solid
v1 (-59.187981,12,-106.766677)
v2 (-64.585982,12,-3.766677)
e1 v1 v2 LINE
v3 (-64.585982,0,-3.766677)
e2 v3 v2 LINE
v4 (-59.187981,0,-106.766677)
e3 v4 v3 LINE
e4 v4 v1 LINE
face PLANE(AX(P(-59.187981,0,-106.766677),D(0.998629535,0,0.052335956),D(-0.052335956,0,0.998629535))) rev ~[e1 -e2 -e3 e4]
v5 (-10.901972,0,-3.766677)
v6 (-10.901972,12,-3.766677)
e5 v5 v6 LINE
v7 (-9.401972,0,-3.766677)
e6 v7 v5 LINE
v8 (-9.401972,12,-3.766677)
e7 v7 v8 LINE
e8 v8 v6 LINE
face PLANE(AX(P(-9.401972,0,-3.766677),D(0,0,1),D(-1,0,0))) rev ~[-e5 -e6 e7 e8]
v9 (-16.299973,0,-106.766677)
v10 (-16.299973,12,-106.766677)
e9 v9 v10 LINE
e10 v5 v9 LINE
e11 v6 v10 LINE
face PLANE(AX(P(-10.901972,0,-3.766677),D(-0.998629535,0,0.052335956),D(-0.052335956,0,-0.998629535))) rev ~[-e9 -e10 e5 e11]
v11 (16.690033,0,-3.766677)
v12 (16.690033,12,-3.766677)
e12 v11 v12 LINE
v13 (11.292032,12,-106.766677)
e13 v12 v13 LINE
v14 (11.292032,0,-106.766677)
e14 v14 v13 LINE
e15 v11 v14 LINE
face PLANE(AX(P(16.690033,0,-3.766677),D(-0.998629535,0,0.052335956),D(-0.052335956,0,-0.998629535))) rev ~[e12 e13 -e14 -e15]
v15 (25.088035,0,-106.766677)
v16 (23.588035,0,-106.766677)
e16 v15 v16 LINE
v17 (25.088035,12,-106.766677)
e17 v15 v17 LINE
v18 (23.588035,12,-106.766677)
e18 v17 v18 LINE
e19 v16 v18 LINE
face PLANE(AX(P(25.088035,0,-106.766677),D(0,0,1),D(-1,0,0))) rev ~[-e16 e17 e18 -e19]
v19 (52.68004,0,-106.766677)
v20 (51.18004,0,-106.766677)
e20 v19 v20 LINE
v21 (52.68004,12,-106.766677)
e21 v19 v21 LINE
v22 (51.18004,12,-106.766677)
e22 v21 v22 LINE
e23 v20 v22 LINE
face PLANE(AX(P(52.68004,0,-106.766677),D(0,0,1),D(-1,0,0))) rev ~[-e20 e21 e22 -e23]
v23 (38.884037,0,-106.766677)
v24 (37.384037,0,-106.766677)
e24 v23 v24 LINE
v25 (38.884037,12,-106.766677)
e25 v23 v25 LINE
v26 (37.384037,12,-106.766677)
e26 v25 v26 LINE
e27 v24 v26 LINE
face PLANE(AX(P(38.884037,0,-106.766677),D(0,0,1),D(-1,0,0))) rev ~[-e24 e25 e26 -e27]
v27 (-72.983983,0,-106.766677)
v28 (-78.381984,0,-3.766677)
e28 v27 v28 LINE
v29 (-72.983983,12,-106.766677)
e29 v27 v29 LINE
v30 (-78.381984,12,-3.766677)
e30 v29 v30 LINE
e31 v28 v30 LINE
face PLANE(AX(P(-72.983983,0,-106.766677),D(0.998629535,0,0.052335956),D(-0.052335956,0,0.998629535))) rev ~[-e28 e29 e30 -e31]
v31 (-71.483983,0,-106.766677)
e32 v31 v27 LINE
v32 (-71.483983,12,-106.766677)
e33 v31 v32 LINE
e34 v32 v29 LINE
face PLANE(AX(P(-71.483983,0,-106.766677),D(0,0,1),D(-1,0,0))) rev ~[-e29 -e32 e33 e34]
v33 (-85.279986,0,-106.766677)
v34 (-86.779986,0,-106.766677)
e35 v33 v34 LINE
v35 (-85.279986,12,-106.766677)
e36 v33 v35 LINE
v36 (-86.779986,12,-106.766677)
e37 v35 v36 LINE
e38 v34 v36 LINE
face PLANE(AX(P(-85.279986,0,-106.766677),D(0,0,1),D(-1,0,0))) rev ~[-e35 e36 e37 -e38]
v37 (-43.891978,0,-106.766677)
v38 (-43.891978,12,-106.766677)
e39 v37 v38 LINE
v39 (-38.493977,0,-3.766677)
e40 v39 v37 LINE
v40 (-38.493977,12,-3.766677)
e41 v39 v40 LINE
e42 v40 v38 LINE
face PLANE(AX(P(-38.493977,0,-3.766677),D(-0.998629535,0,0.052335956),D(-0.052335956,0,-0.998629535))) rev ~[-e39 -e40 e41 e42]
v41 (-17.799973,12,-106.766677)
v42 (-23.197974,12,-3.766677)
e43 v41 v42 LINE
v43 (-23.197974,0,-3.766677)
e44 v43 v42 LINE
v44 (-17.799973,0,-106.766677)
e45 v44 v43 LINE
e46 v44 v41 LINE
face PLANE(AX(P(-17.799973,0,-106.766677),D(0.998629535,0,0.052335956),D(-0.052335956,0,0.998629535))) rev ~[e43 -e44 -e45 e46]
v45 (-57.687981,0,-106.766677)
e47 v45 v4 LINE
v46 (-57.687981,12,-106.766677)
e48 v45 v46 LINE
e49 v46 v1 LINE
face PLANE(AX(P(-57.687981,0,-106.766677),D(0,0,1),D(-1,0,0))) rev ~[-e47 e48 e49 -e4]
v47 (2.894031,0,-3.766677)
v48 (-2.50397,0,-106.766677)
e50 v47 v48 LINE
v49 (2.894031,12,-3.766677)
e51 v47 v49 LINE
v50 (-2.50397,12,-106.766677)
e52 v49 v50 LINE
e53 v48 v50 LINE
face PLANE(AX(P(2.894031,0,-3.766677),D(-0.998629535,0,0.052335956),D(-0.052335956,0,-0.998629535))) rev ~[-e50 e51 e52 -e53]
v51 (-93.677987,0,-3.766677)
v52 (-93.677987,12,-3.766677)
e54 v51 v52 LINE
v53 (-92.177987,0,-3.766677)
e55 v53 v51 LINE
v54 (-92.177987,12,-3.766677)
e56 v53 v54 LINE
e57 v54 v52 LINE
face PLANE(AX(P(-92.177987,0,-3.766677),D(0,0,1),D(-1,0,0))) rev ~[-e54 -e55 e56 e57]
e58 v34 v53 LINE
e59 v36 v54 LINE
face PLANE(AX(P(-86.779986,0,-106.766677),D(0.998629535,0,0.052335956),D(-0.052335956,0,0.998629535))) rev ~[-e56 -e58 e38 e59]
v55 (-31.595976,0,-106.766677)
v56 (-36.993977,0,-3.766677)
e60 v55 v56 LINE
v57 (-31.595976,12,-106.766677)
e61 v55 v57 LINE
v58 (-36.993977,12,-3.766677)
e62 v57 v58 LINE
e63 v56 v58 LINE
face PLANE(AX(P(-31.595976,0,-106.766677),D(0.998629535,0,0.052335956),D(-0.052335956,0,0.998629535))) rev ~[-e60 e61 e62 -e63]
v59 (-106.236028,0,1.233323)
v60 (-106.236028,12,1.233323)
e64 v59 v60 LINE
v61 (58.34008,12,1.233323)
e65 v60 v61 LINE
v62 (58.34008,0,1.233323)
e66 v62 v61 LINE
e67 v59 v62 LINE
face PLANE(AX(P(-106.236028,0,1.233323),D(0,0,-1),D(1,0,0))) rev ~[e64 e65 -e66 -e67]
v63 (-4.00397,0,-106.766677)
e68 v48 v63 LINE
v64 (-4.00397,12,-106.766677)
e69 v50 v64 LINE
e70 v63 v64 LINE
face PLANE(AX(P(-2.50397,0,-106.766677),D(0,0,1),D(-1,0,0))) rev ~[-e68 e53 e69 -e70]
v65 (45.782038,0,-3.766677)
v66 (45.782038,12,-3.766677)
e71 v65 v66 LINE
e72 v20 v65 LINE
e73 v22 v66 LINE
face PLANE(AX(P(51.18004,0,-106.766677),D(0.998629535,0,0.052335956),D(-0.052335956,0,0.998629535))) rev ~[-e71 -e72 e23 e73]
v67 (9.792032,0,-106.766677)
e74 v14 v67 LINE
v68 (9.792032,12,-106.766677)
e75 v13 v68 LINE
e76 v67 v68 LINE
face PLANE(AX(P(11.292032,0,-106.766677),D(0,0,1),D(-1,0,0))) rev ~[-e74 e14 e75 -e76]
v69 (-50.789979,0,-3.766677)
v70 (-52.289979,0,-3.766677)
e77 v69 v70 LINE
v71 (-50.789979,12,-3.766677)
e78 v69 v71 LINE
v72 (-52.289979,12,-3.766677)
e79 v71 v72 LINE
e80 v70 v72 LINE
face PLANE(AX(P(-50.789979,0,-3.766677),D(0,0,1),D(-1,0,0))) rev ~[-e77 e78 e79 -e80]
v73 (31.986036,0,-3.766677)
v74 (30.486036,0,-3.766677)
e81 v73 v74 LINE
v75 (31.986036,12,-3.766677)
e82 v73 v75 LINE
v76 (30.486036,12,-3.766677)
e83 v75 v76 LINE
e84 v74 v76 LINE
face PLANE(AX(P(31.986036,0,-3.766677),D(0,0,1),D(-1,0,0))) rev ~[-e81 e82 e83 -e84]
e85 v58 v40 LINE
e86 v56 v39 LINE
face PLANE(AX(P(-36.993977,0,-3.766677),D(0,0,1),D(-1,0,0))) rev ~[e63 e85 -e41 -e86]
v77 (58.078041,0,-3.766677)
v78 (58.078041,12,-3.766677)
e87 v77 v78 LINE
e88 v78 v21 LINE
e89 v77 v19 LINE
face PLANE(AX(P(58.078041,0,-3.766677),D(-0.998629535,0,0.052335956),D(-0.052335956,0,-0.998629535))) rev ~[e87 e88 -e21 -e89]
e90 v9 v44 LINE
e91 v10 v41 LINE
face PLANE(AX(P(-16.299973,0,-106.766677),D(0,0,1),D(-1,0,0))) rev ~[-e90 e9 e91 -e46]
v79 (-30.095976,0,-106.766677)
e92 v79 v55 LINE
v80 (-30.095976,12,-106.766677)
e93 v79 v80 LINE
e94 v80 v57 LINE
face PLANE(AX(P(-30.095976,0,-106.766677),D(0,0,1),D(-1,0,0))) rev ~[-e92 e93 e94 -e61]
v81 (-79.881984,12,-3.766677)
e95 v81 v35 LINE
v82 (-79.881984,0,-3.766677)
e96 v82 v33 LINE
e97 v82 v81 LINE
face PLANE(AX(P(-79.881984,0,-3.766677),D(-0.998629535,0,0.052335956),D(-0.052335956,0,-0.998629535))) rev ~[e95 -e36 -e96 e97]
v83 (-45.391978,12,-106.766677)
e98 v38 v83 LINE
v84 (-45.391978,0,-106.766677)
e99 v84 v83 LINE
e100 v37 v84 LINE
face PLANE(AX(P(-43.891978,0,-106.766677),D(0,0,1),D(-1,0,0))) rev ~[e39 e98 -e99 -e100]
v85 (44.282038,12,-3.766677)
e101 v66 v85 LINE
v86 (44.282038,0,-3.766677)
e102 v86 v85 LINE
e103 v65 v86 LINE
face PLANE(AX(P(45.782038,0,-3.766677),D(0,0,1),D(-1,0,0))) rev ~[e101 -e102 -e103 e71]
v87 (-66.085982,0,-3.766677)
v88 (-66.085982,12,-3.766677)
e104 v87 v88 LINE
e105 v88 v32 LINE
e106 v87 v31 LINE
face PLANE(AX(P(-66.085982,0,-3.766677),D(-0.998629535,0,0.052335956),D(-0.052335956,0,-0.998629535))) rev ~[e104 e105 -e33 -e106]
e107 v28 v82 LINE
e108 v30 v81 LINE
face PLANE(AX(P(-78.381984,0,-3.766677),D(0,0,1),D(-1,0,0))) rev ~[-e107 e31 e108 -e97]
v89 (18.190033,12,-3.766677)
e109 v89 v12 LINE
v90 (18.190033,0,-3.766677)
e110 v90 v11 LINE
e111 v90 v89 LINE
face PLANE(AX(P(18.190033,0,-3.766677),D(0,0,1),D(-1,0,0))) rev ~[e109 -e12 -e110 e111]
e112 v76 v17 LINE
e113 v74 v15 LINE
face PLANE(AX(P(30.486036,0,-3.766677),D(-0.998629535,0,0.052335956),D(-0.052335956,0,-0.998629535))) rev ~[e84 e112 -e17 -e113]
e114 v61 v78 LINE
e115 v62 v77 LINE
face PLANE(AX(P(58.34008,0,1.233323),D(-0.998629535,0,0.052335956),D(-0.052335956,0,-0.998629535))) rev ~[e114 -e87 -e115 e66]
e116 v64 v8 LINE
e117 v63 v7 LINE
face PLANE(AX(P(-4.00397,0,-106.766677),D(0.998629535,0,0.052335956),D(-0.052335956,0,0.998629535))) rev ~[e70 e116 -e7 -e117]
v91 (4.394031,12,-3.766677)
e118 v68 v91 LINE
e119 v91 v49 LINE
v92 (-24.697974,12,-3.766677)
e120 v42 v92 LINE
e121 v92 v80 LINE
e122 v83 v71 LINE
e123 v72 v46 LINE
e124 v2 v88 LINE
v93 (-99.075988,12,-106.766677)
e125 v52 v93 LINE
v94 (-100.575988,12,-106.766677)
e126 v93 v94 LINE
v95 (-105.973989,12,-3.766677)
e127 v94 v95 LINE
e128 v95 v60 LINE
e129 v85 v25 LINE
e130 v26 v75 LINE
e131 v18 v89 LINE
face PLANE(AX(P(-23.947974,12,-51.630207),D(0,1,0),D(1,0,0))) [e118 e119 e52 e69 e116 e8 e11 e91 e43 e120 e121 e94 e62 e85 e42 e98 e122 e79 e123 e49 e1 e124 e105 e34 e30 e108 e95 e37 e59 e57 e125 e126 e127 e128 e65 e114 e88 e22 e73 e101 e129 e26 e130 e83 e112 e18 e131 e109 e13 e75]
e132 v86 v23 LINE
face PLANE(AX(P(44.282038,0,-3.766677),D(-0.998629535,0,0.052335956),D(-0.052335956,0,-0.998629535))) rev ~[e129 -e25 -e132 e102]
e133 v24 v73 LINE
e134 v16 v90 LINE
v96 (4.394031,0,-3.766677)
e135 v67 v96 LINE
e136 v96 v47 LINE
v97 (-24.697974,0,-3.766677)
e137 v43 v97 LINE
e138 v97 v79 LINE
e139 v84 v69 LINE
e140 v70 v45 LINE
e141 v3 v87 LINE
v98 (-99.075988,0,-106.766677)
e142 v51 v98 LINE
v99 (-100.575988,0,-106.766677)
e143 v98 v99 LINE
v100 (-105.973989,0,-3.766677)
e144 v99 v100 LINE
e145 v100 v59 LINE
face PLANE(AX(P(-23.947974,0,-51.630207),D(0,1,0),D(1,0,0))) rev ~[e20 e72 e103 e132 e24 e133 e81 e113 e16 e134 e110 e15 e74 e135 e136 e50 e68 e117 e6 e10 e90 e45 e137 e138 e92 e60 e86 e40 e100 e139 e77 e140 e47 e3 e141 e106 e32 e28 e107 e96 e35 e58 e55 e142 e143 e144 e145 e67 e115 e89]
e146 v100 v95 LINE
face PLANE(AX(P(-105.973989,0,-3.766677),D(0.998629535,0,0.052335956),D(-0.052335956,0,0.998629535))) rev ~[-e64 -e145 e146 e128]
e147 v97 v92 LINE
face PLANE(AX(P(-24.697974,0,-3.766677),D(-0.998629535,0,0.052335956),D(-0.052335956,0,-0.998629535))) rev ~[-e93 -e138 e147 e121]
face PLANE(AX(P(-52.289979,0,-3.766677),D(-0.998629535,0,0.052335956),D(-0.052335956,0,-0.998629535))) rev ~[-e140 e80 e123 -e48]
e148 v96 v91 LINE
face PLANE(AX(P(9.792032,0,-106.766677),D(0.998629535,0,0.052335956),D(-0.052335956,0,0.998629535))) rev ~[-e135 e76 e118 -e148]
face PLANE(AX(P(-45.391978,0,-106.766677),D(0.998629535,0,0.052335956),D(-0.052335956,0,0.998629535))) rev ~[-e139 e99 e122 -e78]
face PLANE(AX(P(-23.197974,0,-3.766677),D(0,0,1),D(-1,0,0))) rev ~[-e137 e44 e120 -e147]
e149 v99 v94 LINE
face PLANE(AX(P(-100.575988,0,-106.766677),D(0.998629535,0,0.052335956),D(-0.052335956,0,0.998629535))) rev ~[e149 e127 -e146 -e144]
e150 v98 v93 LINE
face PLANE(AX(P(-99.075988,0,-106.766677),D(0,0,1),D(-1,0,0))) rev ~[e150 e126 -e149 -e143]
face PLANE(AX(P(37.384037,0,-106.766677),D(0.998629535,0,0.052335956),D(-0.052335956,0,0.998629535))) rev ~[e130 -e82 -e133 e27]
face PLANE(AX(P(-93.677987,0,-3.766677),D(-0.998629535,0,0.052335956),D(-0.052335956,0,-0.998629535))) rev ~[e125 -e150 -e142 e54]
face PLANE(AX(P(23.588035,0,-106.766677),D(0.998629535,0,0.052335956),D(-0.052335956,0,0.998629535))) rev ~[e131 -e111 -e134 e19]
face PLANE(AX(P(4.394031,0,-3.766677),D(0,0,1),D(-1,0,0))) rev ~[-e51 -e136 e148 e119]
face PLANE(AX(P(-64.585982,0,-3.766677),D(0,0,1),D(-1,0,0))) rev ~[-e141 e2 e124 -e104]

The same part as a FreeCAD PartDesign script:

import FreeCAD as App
import Part
import Sketcher
from FreeCAD import Vector
Q = App.Units.Quantity


def add_polygon(sketch, points):
    """Adds a closed chain of lines whose ends are joined by coincident constraints."""
    first, n = sketch.GeometryCount, len(points)
    for a, b in zip(points, points[1:] + points[:1]):
        sketch.addGeometry(Part.LineSegment(App.Vector(*a, 0), App.Vector(*b, 0)), False)
    for i in range(n):
        sketch.addConstraint(Sketcher.Constraint("Coincident", first + i, 2, first + (i + 1) % n, 1))

doc = App.newDocument("Part")
body = doc.addObject("PartDesign::Body", "Body")

sketch1 = body.newObject("Sketcher::SketchObject", "Sketch")
sketch1.AttachmentSupport = (doc.getObject("XZ_Plane"), [""])
sketch1.MapMode = "FlatFace"
add_polygon(sketch1, [(58.3, 1.2), (58.1, -3.8), (52.7, -106.8), (51.2, -106.8), (45.8, -3.8), (44.3, -3.8), (38.9, -106.8), (37.4, -106.8), (32, -3.8), (30.5, -3.8), (25.1, -106.8), (23.6, -106.8), (18.2, -3.8), (16.7, -3.8), (11.3, -106.8), (9.8, -106.8), (4.4, -3.8), (2.9, -3.8), (-2.5, -106.8), (-4, -106.8), (-9.4, -3.8), (-10.9, -3.8), (-16.3, -106.8), (-17.8, -106.8), (-23.2, -3.8), (-24.7, -3.8), (-30.1, -106.8), (-31.6, -106.8), (-37, -3.8), (-38.5, -3.8), (-43.9, -106.8), (-45.4, -106.8), (-50.8, -3.8), (-52.3, -3.8), (-57.7, -106.8), (-59.2, -106.8), (-64.6, -3.8), (-66.1, -3.8), (-71.5, -106.8), (-73, -106.8), (-78.4, -3.8), (-79.9, -3.8), (-85.3, -106.8), (-86.8, -106.8), (-92.2, -3.8), (-93.7, -3.8), (-99.1, -106.8), (-100.6, -106.8), (-106, -3.8), (-106.2, 1.2)])
sketch1.addConstraint([
    Sketcher.Constraint("Horizontal", 2),
    Sketcher.Constraint("Horizontal", 4),
    Sketcher.Constraint("Horizontal", 6),
    Sketcher.Constraint("Horizontal", 8),
    Sketcher.Constraint("Horizontal", 10),
    Sketcher.Constraint("Horizontal", 12),
    Sketcher.Constraint("Horizontal", 14),
    Sketcher.Constraint("Horizontal", 16),
    Sketcher.Constraint("Horizontal", 18),
    Sketcher.Constraint("Horizontal", 20),
    Sketcher.Constraint("Horizontal", 22),
    Sketcher.Constraint("Horizontal", 24),
    Sketcher.Constraint("Horizontal", 26),
    Sketcher.Constraint("Horizontal", 28),
    Sketcher.Constraint("Horizontal", 30),
    Sketcher.Constraint("Horizontal", 32),
    Sketcher.Constraint("Horizontal", 34),
    Sketcher.Constraint("Horizontal", 36),
    Sketcher.Constraint("Horizontal", 38),
    Sketcher.Constraint("Horizontal", 40),
    Sketcher.Constraint("Horizontal", 42),
    Sketcher.Constraint("Horizontal", 44),
    Sketcher.Constraint("Horizontal", 46),
    Sketcher.Constraint("Horizontal", 49),
    Sketcher.Constraint("Parallel", 0, 1),
    Sketcher.Constraint("Parallel", 1, 5),
    Sketcher.Constraint("Parallel", 3, 7),
    Sketcher.Constraint("Parallel", 5, 9),
    Sketcher.Constraint("Parallel", 7, 11),
    Sketcher.Constraint("Parallel", 9, 13),
    Sketcher.Constraint("Parallel", 11, 15),
    Sketcher.Constraint("Parallel", 13, 17),
    Sketcher.Constraint("Parallel", 15, 19),
    Sketcher.Constraint("Parallel", 17, 21),
    Sketcher.Constraint("Parallel", 19, 23),
    Sketcher.Constraint("Parallel", 21, 25),
    Sketcher.Constraint("Parallel", 23, 27),
    Sketcher.Constraint("Parallel", 25, 29),
    Sketcher.Constraint("Parallel", 27, 31),
    Sketcher.Constraint("Parallel", 29, 33),
    Sketcher.Constraint("Parallel", 31, 35),
    Sketcher.Constraint("Parallel", 33, 37),
    Sketcher.Constraint("Parallel", 35, 39),
    Sketcher.Constraint("Parallel", 37, 41),
    Sketcher.Constraint("Parallel", 39, 43),
    Sketcher.Constraint("Parallel", 41, 45),
    Sketcher.Constraint("Parallel", 43, 47),
    Sketcher.Constraint("Parallel", 47, 48),
    Sketcher.Constraint("Horizontal", 0, 2, 3, 2),
    Sketcher.Constraint("Horizontal", 2, 2, 5, 2),
    Sketcher.Constraint("Horizontal", 4, 2, 7, 2),
    Sketcher.Constraint("Horizontal", 6, 2, 9, 2),
    Sketcher.Constraint("Horizontal", 8, 2, 11, 2),
    Sketcher.Constraint("Horizontal", 10, 2, 13, 2),
    Sketcher.Constraint("Horizontal", 12, 2, 15, 2),
    Sketcher.Constraint("Horizontal", 14, 2, 17, 2),
    Sketcher.Constraint("Horizontal", 16, 2, 19, 2),
    Sketcher.Constraint("Horizontal", 18, 2, 21, 2),
    Sketcher.Constraint("Horizontal", 20, 2, 23, 2),
    Sketcher.Constraint("Horizontal", 22, 2, 25, 2),
    Sketcher.Constraint("Horizontal", 24, 2, 27, 2),
    Sketcher.Constraint("Horizontal", 26, 2, 29, 2),
    Sketcher.Constraint("Horizontal", 28, 2, 31, 2),
    Sketcher.Constraint("Horizontal", 30, 2, 33, 2),
    Sketcher.Constraint("Horizontal", 32, 2, 35, 2),
    Sketcher.Constraint("Horizontal", 34, 2, 37, 2),
    Sketcher.Constraint("Horizontal", 36, 2, 39, 2),
    Sketcher.Constraint("Horizontal", 38, 2, 41, 2),
    Sketcher.Constraint("Horizontal", 40, 2, 43, 2),
    Sketcher.Constraint("Horizontal", 42, 2, 45, 2),
    Sketcher.Constraint("Horizontal", 44, 2, 47, 2),
    Sketcher.Constraint("Equal", 2, 4),
    Sketcher.Constraint("Equal", 4, 6),
    Sketcher.Constraint("Equal", 6, 8),
    Sketcher.Constraint("Equal", 8, 10),
    Sketcher.Constraint("Equal", 10, 12),
    Sketcher.Constraint("Equal", 12, 14),
    Sketcher.Constraint("Equal", 14, 16),
    Sketcher.Constraint("Equal", 16, 18),
    Sketcher.Constraint("Equal", 18, 20),
    Sketcher.Constraint("Equal", 20, 22),
    Sketcher.Constraint("Equal", 22, 24),
    Sketcher.Constraint("Equal", 24, 26),
    Sketcher.Constraint("Equal", 26, 28),
    Sketcher.Constraint("Equal", 28, 30),
    Sketcher.Constraint("Equal", 30, 32),
    Sketcher.Constraint("Equal", 32, 34),
    Sketcher.Constraint("Equal", 34, 36),
    Sketcher.Constraint("Equal", 36, 38),
    Sketcher.Constraint("Equal", 38, 40),
    Sketcher.Constraint("Equal", 40, 42),
    Sketcher.Constraint("Equal", 42, 44),
    Sketcher.Constraint("Equal", 44, 46),
    Sketcher.Constraint("Equal", 1, 3),
    Sketcher.Constraint("Angle", 0, Q("-93 deg")),
    Sketcher.Constraint("DistanceX", 2, 2, 2, 1, 1.5),
    Sketcher.Constraint("DistanceY", 1, 2, 0, 2, 103.0),
    Sketcher.Constraint("DistanceY", 47, 2, 48, 2, 5.0),
    Sketcher.Constraint("DistanceX", -1, 1, 0, 2, 58.078041),
    Sketcher.Constraint("DistanceY", 0, 2, -1, 1, 3.766677),
])
pad1 = body.newObject("PartDesign::Pad", "Pad")
pad1.Profile = sketch1
pad1.Length = 12
pad1.Reversed = True

doc.recompute()
